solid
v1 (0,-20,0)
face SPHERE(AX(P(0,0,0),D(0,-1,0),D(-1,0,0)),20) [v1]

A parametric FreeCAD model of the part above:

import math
import FreeCAD as App
import Part
import Sketcher
from FreeCAD import Vector

doc = App.newDocument("Part")
body = doc.addObject("PartDesign::Body", "Body")

sketch1 = doc.addObject("Sketcher::SketchObject", "Sketch")
body.addObject(sketch1)
sketch1.AttachmentSupport = (doc.XY_Plane, [""])
sketch1.MapMode = "FlatFace"
sketch1.addGeometry(Part.LineSegment(Vector(0, 20, 0), Vector(0, -20, 0)), False)
sketch1.addGeometry(Part.ArcOfCircle(Part.Circle(Vector(0, 0, 0), Vector(0, 0, 1), 20), math.radians(-90), math.radians(90)), False)
sketch1.addConstraint(Sketcher.Constraint("Coincident", 0, 1, 1, 2))
sketch1.addConstraint(Sketcher.Constraint("Coincident", 1, 1, 0, 2))
sketch1.addConstraint(Sketcher.Constraint("Vertical", 0))
sketch1.addConstraint(Sketcher.Constraint("Coincident", 1, 3, -1, 1))
sketch1.addConstraint(Sketcher.Constraint("PointOnObject", 0, 1, -2))
sketch1.addConstraint(Sketcher.Constraint("Radius", 1, 20.0))
revolution = doc.addObject("PartDesign::Revolution", "Revolution")
body.addObject(revolution)
revolution.Profile = sketch1
revolution.ReferenceAxis = (sketch1, ["V_Axis"])
revolution.Angle = 360

doc.recompute()
